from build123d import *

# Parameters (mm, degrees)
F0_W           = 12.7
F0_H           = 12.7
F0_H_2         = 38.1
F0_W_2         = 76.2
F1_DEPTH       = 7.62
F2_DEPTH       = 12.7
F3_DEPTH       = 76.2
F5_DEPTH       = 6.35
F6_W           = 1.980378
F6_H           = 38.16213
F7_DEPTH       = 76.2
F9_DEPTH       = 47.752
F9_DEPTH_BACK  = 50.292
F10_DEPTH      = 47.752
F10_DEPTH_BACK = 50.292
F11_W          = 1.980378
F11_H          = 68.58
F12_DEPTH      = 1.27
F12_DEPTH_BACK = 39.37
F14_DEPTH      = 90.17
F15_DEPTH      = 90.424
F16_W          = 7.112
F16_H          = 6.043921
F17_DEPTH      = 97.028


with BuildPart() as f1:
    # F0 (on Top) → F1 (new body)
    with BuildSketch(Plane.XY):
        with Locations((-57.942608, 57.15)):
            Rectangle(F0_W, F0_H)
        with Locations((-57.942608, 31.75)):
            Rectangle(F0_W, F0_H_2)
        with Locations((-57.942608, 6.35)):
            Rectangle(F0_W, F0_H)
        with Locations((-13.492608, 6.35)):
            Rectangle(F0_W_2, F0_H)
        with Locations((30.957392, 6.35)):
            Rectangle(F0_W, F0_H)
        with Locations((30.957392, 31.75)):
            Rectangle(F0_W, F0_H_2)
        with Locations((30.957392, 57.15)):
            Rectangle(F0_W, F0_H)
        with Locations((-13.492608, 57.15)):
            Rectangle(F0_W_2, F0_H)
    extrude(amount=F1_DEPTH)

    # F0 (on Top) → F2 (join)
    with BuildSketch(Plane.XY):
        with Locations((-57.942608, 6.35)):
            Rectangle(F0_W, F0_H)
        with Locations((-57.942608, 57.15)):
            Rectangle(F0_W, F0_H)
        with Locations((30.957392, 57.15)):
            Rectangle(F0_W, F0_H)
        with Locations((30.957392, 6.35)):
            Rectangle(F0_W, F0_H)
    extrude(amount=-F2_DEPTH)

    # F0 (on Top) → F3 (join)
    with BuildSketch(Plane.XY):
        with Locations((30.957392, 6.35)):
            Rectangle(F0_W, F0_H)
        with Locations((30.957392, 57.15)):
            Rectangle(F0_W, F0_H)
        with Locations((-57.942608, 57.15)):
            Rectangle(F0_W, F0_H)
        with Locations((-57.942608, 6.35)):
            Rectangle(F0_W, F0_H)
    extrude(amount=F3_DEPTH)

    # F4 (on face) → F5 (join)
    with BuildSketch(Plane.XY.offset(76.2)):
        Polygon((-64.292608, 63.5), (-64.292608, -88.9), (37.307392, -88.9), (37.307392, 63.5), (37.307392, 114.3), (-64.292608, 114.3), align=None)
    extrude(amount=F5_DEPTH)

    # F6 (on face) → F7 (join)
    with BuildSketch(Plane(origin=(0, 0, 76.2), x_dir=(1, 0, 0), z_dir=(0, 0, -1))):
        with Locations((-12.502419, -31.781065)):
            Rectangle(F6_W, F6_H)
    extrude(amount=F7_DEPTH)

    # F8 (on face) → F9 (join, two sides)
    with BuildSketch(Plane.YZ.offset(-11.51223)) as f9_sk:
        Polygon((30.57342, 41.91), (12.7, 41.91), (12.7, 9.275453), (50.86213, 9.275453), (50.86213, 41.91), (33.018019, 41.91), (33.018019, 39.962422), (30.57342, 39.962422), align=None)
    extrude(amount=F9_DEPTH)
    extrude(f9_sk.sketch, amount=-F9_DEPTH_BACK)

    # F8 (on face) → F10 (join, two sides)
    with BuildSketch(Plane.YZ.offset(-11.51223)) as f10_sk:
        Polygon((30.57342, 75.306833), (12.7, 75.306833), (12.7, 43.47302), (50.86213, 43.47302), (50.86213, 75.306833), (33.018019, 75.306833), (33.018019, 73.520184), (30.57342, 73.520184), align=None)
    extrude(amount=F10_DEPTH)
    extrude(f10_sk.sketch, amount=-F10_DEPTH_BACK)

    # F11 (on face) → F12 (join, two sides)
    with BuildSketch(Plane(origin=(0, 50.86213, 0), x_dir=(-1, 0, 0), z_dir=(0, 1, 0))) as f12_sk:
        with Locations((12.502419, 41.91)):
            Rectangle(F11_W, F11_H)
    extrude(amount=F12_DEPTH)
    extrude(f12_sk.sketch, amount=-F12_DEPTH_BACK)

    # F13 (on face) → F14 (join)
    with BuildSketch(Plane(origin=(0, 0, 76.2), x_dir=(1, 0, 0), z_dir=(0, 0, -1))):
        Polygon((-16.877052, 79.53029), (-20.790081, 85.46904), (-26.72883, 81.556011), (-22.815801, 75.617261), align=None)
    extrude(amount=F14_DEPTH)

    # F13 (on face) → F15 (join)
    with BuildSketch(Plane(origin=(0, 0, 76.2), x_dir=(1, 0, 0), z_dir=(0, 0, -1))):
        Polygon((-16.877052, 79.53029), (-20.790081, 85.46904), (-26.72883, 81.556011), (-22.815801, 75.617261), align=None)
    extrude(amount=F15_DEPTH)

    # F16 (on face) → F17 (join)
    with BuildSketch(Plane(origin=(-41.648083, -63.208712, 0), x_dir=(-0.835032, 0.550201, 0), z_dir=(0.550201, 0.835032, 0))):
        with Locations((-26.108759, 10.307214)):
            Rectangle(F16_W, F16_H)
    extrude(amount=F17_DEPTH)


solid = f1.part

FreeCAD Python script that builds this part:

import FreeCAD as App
import Part
import Sketcher
Q = App.Units.Quantity


def add_polygon(sketch, points):
    """Adds a closed chain of lines whose ends are joined by coincident constraints."""
    first, n = sketch.GeometryCount, len(points)
    for a, b in zip(points, points[1:] + points[:1]):
        sketch.addGeometry(Part.LineSegment(App.Vector(*a, 0), App.Vector(*b, 0)), False)
    for i in range(n):
        sketch.addConstraint(Sketcher.Constraint("Coincident", first + i, 2, first + (i + 1) % n, 1))

doc = App.newDocument("Part")
body = doc.addObject("PartDesign::Body", "Body")

sketch1 = body.newObject("Sketcher::SketchObject", "Sketch")
sketch1.AttachmentSupport = (doc.getObject("XY_Plane"), [""])
sketch1.MapMode = "FlatFace"
add_polygon(sketch1, [(-64, 64), (-64, 0), (37, 0), (37, 64)])
add_polygon(sketch1, [(25, 51), (25, 13), (-52, 13), (-52, 51)])
sketch1.addConstraint([
    Sketcher.Constraint("Vertical", 0),
    Sketcher.Constraint("Horizontal", 1),
    Sketcher.Constraint("Vertical", 2),
    Sketcher.Constraint("Horizontal", 3),
    Sketcher.Constraint("Vertical", 4),
    Sketcher.Constraint("Horizontal", 5),
    Sketcher.Constraint("Vertical", 6),
    Sketcher.Constraint("Horizontal", 7),
    Sketcher.Constraint("PointOnObject", 0, 2, -1),
    Sketcher.Constraint("DistanceX", 1, 1, 1, 2, Q("4 in")),
    Sketcher.Constraint("DistanceX", 5, 2, 5, 1, Q("3 in")),
    Sketcher.Constraint("DistanceY", 0, 2, 0, 1, Q("2.5 in")),
    Sketcher.Constraint("DistanceY", 4, 2, 4, 1, Q("1.5 in")),
    Sketcher.Constraint("DistanceY", -1, 1, 6, 2, Q("2 in")),
    Sketcher.Constraint("DistanceX", 4, 2, 1, 2, Q("0.5 in")),
    Sketcher.Constraint("DistanceX", 0, 2, -1, 1, Q("64.292608 mm")),
])
pad1 = body.newObject("PartDesign::Pad", "Pad")
pad1.Profile = sketch1
pad1.Length = Q("0.3 in")

sketch2 = body.newObject("Sketcher::SketchObject", "Sketch001")
sketch2.AttachmentSupport = (doc.getObject("XY_Plane"), [""])
sketch2.MapMode = "FlatFace"
add_polygon(sketch2, [(-64, 13), (-64, 0), (-52, 0), (-52, 13)])
add_polygon(sketch2, [(-64, 64), (-64, 51), (-52, 51), (-52, 64)])
add_polygon(sketch2, [(25, 64), (25, 51), (37, 51), (37, 64)])
add_polygon(sketch2, [(25, 13), (25, 0), (37, 0), (37, 13)])
sketch2.addConstraint([
    Sketcher.Constraint("Vertical", 0),
    Sketcher.Constraint("Horizontal", 1),
    Sketcher.Constraint("Vertical", 2),
    Sketcher.Constraint("Horizontal", 3),
    Sketcher.Constraint("Vertical", 4),
    Sketcher.Constraint("Horizontal", 5),
    Sketcher.Constraint("Vertical", 6),
    Sketcher.Constraint("Horizontal", 7),
    Sketcher.Constraint("Vertical", 8),
    Sketcher.Constraint("Horizontal", 9),
    Sketcher.Constraint("Vertical", 10),
    Sketcher.Constraint("Horizontal", 11),
    Sketcher.Constraint("Vertical", 12),
    Sketcher.Constraint("Horizontal", 13),
    Sketcher.Constraint("Vertical", 14),
    Sketcher.Constraint("Horizontal", 15),
    Sketcher.Constraint("PointOnObject", 0, 2, -1),
    Sketcher.Constraint("PointOnObject", 12, 2, -1),
    Sketcher.Constraint("Horizontal", 5, 2, 8, 2),
    Sketcher.Constraint("Horizontal", 7, 2, 10, 2),
    Sketcher.Constraint("Horizontal", 3, 2, 14, 2),
    Sketcher.Constraint("Vertical", 3, 2, 4, 2),
    Sketcher.Constraint("Vertical", 2, 2, 5, 2),
    Sketcher.Constraint("Vertical", 11, 2, 12, 2),
    Sketcher.Constraint("Vertical", 10, 2, 13, 2),
    Sketcher.Constraint("Equal", 7, 9),
    Sketcher.Constraint("Equal", 15, 0),
    Sketcher.Constraint("Equal", 2, 4),
    Sketcher.Constraint("DistanceX", 1, 1, 1, 2, Q("0.5 in")),
    Sketcher.Constraint("DistanceY", -1, 1, 4, 2, Q("2 in")),
    Sketcher.Constraint("DistanceX", 5, 2, 8, 2, Q("3 in")),
    Sketcher.Constraint("DistanceX", 0, 2, -1, 1, Q("64.292608 mm")),
])
pad2 = body.newObject("PartDesign::Pad", "Pad001")
pad2.Profile = sketch2
pad2.Length = Q("0.5 in")
pad2.Reversed = True

sketch3 = body.newObject("Sketcher::SketchObject", "Sketch002")
sketch3.AttachmentSupport = (doc.getObject("XY_Plane"), [""])
sketch3.MapMode = "FlatFace"
add_polygon(sketch3, [(25, 13), (25, 0), (37, 0), (37, 13)])
add_polygon(sketch3, [(25, 64), (25, 51), (37, 51), (37, 64)])
add_polygon(sketch3, [(-64, 64), (-64, 51), (-52, 51), (-52, 64)])
add_polygon(sketch3, [(-64, 13), (-64, 0), (-52, 0), (-52, 13)])
sketch3.addConstraint([
    Sketcher.Constraint("Vertical", 0),
    Sketcher.Constraint("Horizontal", 1),
    Sketcher.Constraint("Vertical", 2),
    Sketcher.Constraint("Horizontal", 3),
    Sketcher.Constraint("Vertical", 4),
    Sketcher.Constraint("Horizontal", 5),
    Sketcher.Constraint("Vertical", 6),
    Sketcher.Constraint("Horizontal", 7),
    Sketcher.Constraint("Vertical", 8),
    Sketcher.Constraint("Horizontal", 9),
    Sketcher.Constraint("Vertical", 10),
    Sketcher.Constraint("Horizontal", 11),
    Sketcher.Constraint("Vertical", 12),
    Sketcher.Constraint("Horizontal", 13),
    Sketcher.Constraint("Vertical", 14),
    Sketcher.Constraint("Horizontal", 15),
    Sketcher.Constraint("PointOnObject", 0, 2, -1),
    Sketcher.Constraint("PointOnObject", 12, 2, -1),
    Sketcher.Constraint("Horizontal", 5, 2, 8, 2),
    Sketcher.Constraint("Horizontal", 7, 2, 10, 2),
    Sketcher.Constraint("Horizontal", 3, 2, 14, 2),
    Sketcher.Constraint("Vertical", 3, 2, 4, 2),
    Sketcher.Constraint("Vertical", 2, 2, 5, 2),
    Sketcher.Constraint("Vertical", 11, 2, 12, 2),
    Sketcher.Constraint("Vertical", 10, 2, 13, 2),
    Sketcher.Constraint("Equal", 7, 9),
    Sketcher.Constraint("Equal", 15, 0),
    Sketcher.Constraint("Equal", 2, 4),
    Sketcher.Constraint("DistanceX", 1, 1, 1, 2, Q("0.5 in")),
    Sketcher.Constraint("DistanceY", -1, 1, 4, 2, Q("2 in")),
    Sketcher.Constraint("DistanceX", 8, 2, 5, 2, Q("4 in")),
    Sketcher.Constraint("DistanceX", 8, 2, -1, 1, Q("64.292608 mm")),
])
pad3 = body.newObject("PartDesign::Pad", "Pad002")
pad3.Profile = sketch3
pad3.Length = Q("3 in")

sketch4 = body.newObject("Sketcher::SketchObject", "Sketch003")
sketch4.AttachmentSupport = (doc.getObject("XY_Plane"), [""])
sketch4.MapMode = "FlatFace"
sketch4.AttachmentOffset = App.Placement(App.Vector(0, 0, 3 * 25.4), App.Rotation())
add_polygon(sketch4, [(-64, -89), (37, -89), (37, 114), (-64, 114)])
sketch4.addConstraint([
    Sketcher.Constraint("Horizontal", 0),
    Sketcher.Constraint("Vertical", 1),
    Sketcher.Constraint("Horizontal", 2),
    Sketcher.Constraint("Vertical", 3),
    Sketcher.Constraint("DistanceX", 0, 1, 0, 2, Q("4 in")),
    Sketcher.Constraint("DistanceY", 1, 1, 1, 2, Q("8 in")),
    Sketcher.Constraint("DistanceY", 0, 2, -1, 1, Q("3.5 in")),
    Sketcher.Constraint("DistanceX", 2, 2, -1, 1, Q("64.292608 mm")),
])
pad4 = body.newObject("PartDesign::Pad", "Pad003")
pad4.Profile = sketch4
pad4.Length = Q("0.25 in")

sketch5 = body.newObject("Sketcher::SketchObject", "Sketch004")
sketch5.AttachmentSupport = (doc.getObject("XY_Plane"), [""])
sketch5.MapMode = "FlatFace"
sketch5.AttachmentOffset = App.Placement(App.Vector(0, 0, 3 * 25.4), App.Rotation())
add_polygon(sketch5, [(-13.5, 12.7), (-13.5, 50.9), (-11.5, 50.9), (-11.5, 12.7)])
sketch5.addConstraint([
    Sketcher.Constraint("Vertical", 0),
    Sketcher.Constraint("Horizontal", 1),
    Sketcher.Constraint("Vertical", 2),
    Sketcher.Constraint("Horizontal", 3),
    Sketcher.Constraint("DistanceY", -1, 1, 2, 2, Q("0.5 in")),
    Sketcher.Constraint("DistanceY", 0, 1, 0, 2, Q("38.16213 mm")),
    Sketcher.Constraint("DistanceX", 1, 1, 1, 2, Q("1.980378 mm")),
    Sketcher.Constraint("DistanceX", 1, 2, -1, 1, Q("11.51223 mm")),
])
pad5 = body.newObject("PartDesign::Pad", "Pad004")
pad5.Profile = sketch5
pad5.Length = Q("3 in")
pad5.Reversed = True

sketch6 = body.newObject("Sketcher::SketchObject", "Sketch005")
sketch6.AttachmentSupport = (doc.getObject("YZ_Plane"), [""])
sketch6.MapMode = "FlatFace"
sketch6.AttachmentOffset = App.Placement(App.Vector(0, 0, -11.51223), App.Rotation())
add_polygon(sketch6, [(30.6, 41.9), (12.7, 41.9), (12.7, 9.3), (50.9, 9.3), (50.9, 41.9), (33, 41.9), (33, 40), (30.6, 40)])
sketch6.addConstraint([
    Sketcher.Constraint("Horizontal", 0),
    Sketcher.Constraint("Vertical", 1),
    Sketcher.Constraint("Horizontal", 2),
    Sketcher.Constraint("Vertical", 3),
    Sketcher.Constraint("Horizontal", 4),
    Sketcher.Constraint("Vertical", 5),
    Sketcher.Constraint("Horizontal", 6),
    Sketcher.Constraint("Vertical", 7),
    Sketcher.Constraint("Horizontal", 0, 2, 3, 2),
    Sketcher.Constraint("DistanceX", -1, 1, 0, 2, Q("0.5 in")),
    Sketcher.Constraint("DistanceY", -1, 1, 0, 2, Q("1.65 in")),
    Sketcher.Constraint("DistanceX", 6, 2, 6, 1, Q("2.444599 mm")),
    Sketcher.Constraint("DistanceX", 0, 2, 0, 1, Q("17.87342 mm")),
    Sketcher.Constraint("DistanceX", 2, 1, 2, 2, Q("38.16213 mm")),
    Sketcher.Constraint("DistanceY", 1, 2, 1, 1, Q("32.634547 mm")),
    Sketcher.Constraint("DistanceY", 5, 2, 5, 1, Q("1.947578 mm")),
])
pad6 = body.newObject("PartDesign::Pad", "Pad005")
pad6.Profile = sketch6
pad6.Type = "TwoLengths"
pad6.Length = Q("1.88 in")
pad6.Length2 = Q("1.98 in")

sketch7 = body.newObject("Sketcher::SketchObject", "Sketch006")
sketch7.AttachmentSupport = (doc.getObject("YZ_Plane"), [""])
sketch7.MapMode = "FlatFace"
sketch7.AttachmentOffset = App.Placement(App.Vector(0, 0, -11.51223), App.Rotation())
add_polygon(sketch7, [(30.6, 75.3), (12.7, 75.3), (12.7, 43.5), (50.9, 43.5), (50.9, 75.3), (33, 75.3), (33, 73.5), (30.6, 73.5)])
sketch7.addConstraint([
    Sketcher.Constraint("Horizontal", 0),
    Sketcher.Constraint("Vertical", 1),
    Sketcher.Constraint("Horizontal", 2),
    Sketcher.Constraint("Vertical", 3),
    Sketcher.Constraint("Horizontal", 4),
    Sketcher.Constraint("Vertical", 5),
    Sketcher.Constraint("Horizontal", 6),
    Sketcher.Constraint("Vertical", 7),
    Sketcher.Constraint("Horizontal", 0, 2, 3, 2),
    Sketcher.Constraint("DistanceX", -1, 1, 0, 2, Q("0.5 in")),
    Sketcher.Constraint("DistanceX", 6, 2, 6, 1, Q("2.444599 mm")),
    Sketcher.Constraint("DistanceX", 0, 2, 0, 1, Q("17.87342 mm")),
    Sketcher.Constraint("DistanceX", 2, 1, 2, 2, Q("38.16213 mm")),
    Sketcher.Constraint("DistanceY", 5, 2, 5, 1, Q("1.786649 mm")),
    Sketcher.Constraint("DistanceY", 1, 2, 1, 1, Q("31.833813 mm")),
    Sketcher.Constraint("DistanceY", -1, 1, 1, 2, Q("43.47302 mm")),
])
pad7 = body.newObject("PartDesign::Pad", "Pad006")
pad7.Profile = sketch7
pad7.Type = "TwoLengths"
pad7.Length = Q("1.88 in")
pad7.Length2 = Q("1.98 in")

sketch8 = body.newObject("Sketcher::SketchObject", "Sketch007")
sketch8.AttachmentSupport = (doc.getObject("XZ_Plane"), [""])
sketch8.MapMode = "FlatFace"
sketch8.AttachmentOffset = App.Placement(App.Vector(0, 0, -50.86213), App.Rotation())
add_polygon(sketch8, [(-11.5, 76.2), (-11.5, 7.6), (-13.5, 7.6), (-13.5, 76.2)])
sketch8.addConstraint([
    Sketcher.Constraint("Vertical", 0),
    Sketcher.Constraint("Horizontal", 1),
    Sketcher.Constraint("Vertical", 2),
    Sketcher.Constraint("Horizontal", 3),
    Sketcher.Constraint("DistanceY", 0, 2, 0, 1, Q("2.7 in")),
    Sketcher.Constraint("DistanceY", -1, 1, 2, 2, Q("3 in")),
    Sketcher.Constraint("DistanceX", 1, 2, 1, 1, Q("1.980378 mm")),
    Sketcher.Constraint("DistanceX", 0, 2, -1, 1, Q("11.51223 mm")),
])
pad8 = body.newObject("PartDesign::Pad", "Pad007")
pad8.Profile = sketch8
pad8.Type = "TwoLengths"
pad8.Length = Q("0.05 in")
pad8.Length2 = Q("1.55 in")
pad8.Reversed = True

sketch9 = body.newObject("Sketcher::SketchObject", "Sketch008")
sketch9.AttachmentSupport = (doc.getObject("XY_Plane"), [""])
sketch9.MapMode = "FlatFace"
sketch9.AttachmentOffset = App.Placement(App.Vector(0, 0, 3 * 25.4), App.Rotation())
add_polygon(sketch9, [(-17, -80), (-21, -85), (-27, -82), (-23, -76)])
sketch9.addConstraint([
    Sketcher.Constraint("Perpendicular", 0, 1),
    Sketcher.Constraint("Perpendicular", 1, 2),
    Sketcher.Constraint("Perpendicular", 2, 3),
    Sketcher.Constraint("Equal", 0, 1),
    Sketcher.Constraint("Distance", 0, Q("0.28 in")),
    Sketcher.Constraint("DistanceX", 2, 2, -1, 1, Q("22.815801 mm")),
    Sketcher.Constraint("DistanceX", 0, 2, -1, 1, Q("20.790081 mm")),
    Sketcher.Constraint("DistanceY", 0, 2, -1, 1, Q("85.46904 mm")),
])
pad9 = body.newObject("PartDesign::Pad", "Pad008")
pad9.Profile = sketch9
pad9.Length = Q("3.55 in")
pad9.Reversed = True

sketch10 = body.newObject("Sketcher::SketchObject", "Sketch009")
sketch10.AttachmentSupport = (doc.getObject("XY_Plane"), [""])
sketch10.MapMode = "FlatFace"
sketch10.AttachmentOffset = App.Placement(App.Vector(0, 0, 3 * 25.4), App.Rotation())
add_polygon(sketch10, [(-17, -80), (-21, -85), (-27, -82), (-23, -76)])
sketch10.addConstraint([
    Sketcher.Constraint("Perpendicular", 0, 1),
    Sketcher.Constraint("Perpendicular", 1, 2),
    Sketcher.Constraint("Perpendicular", 2, 3),
    Sketcher.Constraint("Equal", 0, 1),
    Sketcher.Constraint("Distance", 0, Q("0.28 in")),
    Sketcher.Constraint("DistanceX", 2, 2, -1, 1, Q("22.815801 mm")),
    Sketcher.Constraint("DistanceX", 0, 2, -1, 1, Q("20.790081 mm")),
    Sketcher.Constraint("DistanceY", 0, 2, -1, 1, Q("85.46904 mm")),
])
pad10 = body.newObject("PartDesign::Pad", "Pad009")
pad10.Profile = sketch10
pad10.Length = Q("3.56 in")
pad10.Reversed = True

sketch11 = body.newObject("Sketcher::SketchObject", "Sketch010")
sketch11.Placement = App.Placement(App.Vector(-41.648083, -63.208712, 0), App.Rotation(App.Vector(-0.835032175, 0.550201115, 0), App.Vector(0, 0, 1), App.Vector(0.550201115, 0.835032175, 0), "ZXY"))
add_polygon(sketch11, [(-30, 13), (-30, 7), (-23, 7), (-23, 13)])
sketch11.addConstraint([
    Sketcher.Constraint("Vertical", 0),
    Sketcher.Constraint("Horizontal", 1),
    Sketcher.Constraint("Vertical", 2),
    Sketcher.Constraint("Horizontal", 3),
    Sketcher.Constraint("DistanceX", 1, 1, 1, 2, Q("0.28 in")),
    Sketcher.Constraint("DistanceY", 0, 2, 0, 1, Q("6.043921 mm")),
    Sketcher.Constraint("DistanceX", 0, 2, -1, 1, Q("29.664759 mm")),
    Sketcher.Constraint("DistanceY", -1, 1, 0, 2, Q("7.285254 mm")),
])
pad11 = body.newObject("PartDesign::Pad", "Pad010")
pad11.Profile = sketch11
pad11.Length = Q("3.82 in")

doc.recompute()
